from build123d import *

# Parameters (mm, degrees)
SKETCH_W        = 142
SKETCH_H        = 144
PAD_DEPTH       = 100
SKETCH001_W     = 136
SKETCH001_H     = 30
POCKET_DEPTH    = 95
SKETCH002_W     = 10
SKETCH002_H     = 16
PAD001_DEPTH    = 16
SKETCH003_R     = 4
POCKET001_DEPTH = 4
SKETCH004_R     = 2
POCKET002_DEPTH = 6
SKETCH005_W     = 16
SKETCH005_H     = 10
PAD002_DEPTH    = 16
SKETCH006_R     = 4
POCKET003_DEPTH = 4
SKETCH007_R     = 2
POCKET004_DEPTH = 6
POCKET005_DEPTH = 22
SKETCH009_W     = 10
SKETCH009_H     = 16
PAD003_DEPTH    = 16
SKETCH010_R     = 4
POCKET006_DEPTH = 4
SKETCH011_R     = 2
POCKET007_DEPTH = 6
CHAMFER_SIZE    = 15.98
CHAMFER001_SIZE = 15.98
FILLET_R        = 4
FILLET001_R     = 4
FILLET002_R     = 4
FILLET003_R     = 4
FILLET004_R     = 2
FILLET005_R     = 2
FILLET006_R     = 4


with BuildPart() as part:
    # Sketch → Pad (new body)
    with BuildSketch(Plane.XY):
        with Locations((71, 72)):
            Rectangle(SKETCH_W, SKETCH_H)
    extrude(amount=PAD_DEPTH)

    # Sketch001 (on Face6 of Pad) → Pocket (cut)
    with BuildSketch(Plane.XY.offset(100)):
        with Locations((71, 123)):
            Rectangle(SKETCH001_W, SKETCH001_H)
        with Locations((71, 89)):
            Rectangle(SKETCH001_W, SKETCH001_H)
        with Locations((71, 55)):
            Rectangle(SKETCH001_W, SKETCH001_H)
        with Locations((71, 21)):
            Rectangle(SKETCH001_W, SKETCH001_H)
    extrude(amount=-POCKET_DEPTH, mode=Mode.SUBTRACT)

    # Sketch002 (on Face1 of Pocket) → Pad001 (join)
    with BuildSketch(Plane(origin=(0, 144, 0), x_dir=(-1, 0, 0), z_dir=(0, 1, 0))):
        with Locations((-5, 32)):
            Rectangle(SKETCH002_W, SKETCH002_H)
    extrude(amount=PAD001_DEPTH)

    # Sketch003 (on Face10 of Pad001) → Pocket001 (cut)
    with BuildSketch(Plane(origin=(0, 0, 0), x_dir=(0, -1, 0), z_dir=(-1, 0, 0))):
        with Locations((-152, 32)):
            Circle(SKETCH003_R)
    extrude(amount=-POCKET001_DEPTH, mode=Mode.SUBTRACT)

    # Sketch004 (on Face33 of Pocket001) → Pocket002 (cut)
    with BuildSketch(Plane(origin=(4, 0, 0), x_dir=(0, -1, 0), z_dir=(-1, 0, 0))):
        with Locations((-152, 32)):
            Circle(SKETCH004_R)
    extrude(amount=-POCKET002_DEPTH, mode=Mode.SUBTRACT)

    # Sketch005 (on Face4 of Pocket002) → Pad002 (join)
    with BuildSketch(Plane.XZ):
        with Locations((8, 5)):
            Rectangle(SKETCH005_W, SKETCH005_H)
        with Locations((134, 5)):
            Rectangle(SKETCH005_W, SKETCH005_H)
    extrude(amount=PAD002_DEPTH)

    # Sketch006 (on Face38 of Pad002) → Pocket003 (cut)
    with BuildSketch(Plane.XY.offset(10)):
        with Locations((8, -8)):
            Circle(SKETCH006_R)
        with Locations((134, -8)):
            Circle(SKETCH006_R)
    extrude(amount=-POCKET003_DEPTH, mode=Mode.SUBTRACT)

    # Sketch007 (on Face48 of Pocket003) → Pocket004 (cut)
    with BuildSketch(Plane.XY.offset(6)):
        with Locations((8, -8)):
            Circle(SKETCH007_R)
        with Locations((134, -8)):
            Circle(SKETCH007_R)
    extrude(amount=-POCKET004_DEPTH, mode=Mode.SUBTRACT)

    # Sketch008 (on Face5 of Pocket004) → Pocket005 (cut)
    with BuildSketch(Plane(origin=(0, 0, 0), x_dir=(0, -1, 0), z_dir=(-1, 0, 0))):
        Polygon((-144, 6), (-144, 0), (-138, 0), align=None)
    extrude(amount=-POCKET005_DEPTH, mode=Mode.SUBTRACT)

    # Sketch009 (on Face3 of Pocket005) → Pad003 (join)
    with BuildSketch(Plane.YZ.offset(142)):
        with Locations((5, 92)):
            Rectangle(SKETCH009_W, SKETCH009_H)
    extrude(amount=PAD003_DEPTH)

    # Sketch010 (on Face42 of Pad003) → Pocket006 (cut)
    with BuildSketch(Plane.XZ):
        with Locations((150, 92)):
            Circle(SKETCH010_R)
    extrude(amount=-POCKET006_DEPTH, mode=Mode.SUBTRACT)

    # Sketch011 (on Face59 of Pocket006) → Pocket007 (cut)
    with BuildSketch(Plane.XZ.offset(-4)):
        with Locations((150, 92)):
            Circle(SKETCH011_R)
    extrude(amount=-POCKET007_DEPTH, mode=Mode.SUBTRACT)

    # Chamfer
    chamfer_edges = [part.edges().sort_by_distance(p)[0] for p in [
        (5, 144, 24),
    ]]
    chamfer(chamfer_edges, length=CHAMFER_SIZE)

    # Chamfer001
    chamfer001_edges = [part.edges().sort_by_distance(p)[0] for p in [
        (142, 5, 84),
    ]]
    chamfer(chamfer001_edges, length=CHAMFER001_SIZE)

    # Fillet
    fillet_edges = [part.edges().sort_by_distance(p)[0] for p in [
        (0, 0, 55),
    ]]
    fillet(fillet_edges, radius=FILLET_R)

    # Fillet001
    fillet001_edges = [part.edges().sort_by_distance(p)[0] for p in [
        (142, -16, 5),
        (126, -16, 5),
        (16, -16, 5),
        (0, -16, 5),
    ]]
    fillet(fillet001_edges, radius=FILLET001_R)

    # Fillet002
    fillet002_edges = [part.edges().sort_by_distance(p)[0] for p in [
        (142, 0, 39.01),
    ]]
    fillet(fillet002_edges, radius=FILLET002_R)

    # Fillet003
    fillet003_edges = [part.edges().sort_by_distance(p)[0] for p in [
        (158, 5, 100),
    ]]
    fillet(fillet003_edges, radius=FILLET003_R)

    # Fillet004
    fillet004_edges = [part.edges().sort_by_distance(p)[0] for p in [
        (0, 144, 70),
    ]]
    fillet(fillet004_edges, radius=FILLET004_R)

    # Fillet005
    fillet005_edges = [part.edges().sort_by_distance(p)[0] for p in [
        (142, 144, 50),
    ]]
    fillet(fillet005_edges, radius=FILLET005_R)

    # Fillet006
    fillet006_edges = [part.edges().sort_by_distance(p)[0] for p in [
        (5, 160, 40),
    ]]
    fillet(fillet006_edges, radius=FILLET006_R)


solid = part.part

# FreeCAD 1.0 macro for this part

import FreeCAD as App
import Part
import Sketcher


def edges_at(feature, points):
    """Names of the edges that pass closest to the given points."""
    edges = feature.Shape.Edges
    near = lambda p: min(range(len(edges)), key=lambda i: edges[i].distToShape(Part.Vertex(*p))[0])
    return sorted({f"Edge{near(p) + 1}" for p in points})


def add_polygon(sketch, points):
    """Adds a closed chain of lines whose ends are joined by coincident constraints."""
    first, n = sketch.GeometryCount, len(points)
    for a, b in zip(points, points[1:] + points[:1]):
        sketch.addGeometry(Part.LineSegment(App.Vector(*a, 0), App.Vector(*b, 0)), False)
    for i in range(n):
        sketch.addConstraint(Sketcher.Constraint("Coincident", first + i, 2, first + (i + 1) % n, 1))

doc = App.newDocument("Part")
body = doc.addObject("PartDesign::Body", "Body")

# Sketch on XY plane
sketch1 = body.newObject("Sketcher::SketchObject", "Sketch")
sketch1.AttachmentSupport = (doc.getObject("XY_Plane"), [""])
sketch1.MapMode = "FlatFace"
add_polygon(sketch1, [(0, 144), (0, 0), (142, 0), (142, 144)])  # lines 0-3
sketch1.addConstraint([
    Sketcher.Constraint("Vertical", 0),
    Sketcher.Constraint("Horizontal", 1),
    Sketcher.Constraint("Vertical", 2),
    Sketcher.Constraint("Horizontal", 3),
    Sketcher.Constraint("Coincident", 0, 2, -1, 1),
    Sketcher.Constraint("DistanceX", 1, 1, 1, 2, 142.0),
    Sketcher.Constraint("DistanceY", 0, 2, 0, 1, 144.0),
])
pad1 = body.newObject("PartDesign::Pad", "Pad")
pad1.Profile = sketch1
pad1.Length = 100

# Sketch on XY plane
sketch2 = body.newObject("Sketcher::SketchObject", "Sketch001")
sketch2.AttachmentSupport = (doc.getObject("XY_Plane"), [""])
sketch2.MapMode = "FlatFace"
sketch2.AttachmentOffset = App.Placement(App.Vector(0, 0, 100), App.Rotation())
add_polygon(sketch2, [(3, 138), (3, 108), (139, 108), (139, 138)])  # lines 0-3
add_polygon(sketch2, [(3, 104), (3, 74), (139, 74), (139, 104)])  # lines 4-7
add_polygon(sketch2, [(3, 70), (3, 40), (139, 40), (139, 70)])  # lines 8-11
add_polygon(sketch2, [(3, 36), (3, 6), (139, 6), (139, 36)])  # lines 12-15
sketch2.addConstraint([
    Sketcher.Constraint("Vertical", 0),
    Sketcher.Constraint("Horizontal", 1),
    Sketcher.Constraint("Vertical", 2),
    Sketcher.Constraint("Horizontal", 3),
    Sketcher.Constraint("Vertical", 4),
    Sketcher.Constraint("Horizontal", 5),
    Sketcher.Constraint("Vertical", 6),
    Sketcher.Constraint("Horizontal", 7),
    Sketcher.Constraint("Vertical", 8),
    Sketcher.Constraint("Horizontal", 9),
    Sketcher.Constraint("Vertical", 10),
    Sketcher.Constraint("Horizontal", 11),
    Sketcher.Constraint("Vertical", 12),
    Sketcher.Constraint("Horizontal", 13),
    Sketcher.Constraint("Vertical", 14),
    Sketcher.Constraint("Horizontal", 15),
    Sketcher.Constraint("Vertical", 3, 2, 4, 2),
    Sketcher.Constraint("Vertical", 2, 2, 5, 2),
    Sketcher.Constraint("Vertical", 7, 2, 8, 2),
    Sketcher.Constraint("Vertical", 6, 2, 9, 2),
    Sketcher.Constraint("Vertical", 11, 2, 12, 2),
    Sketcher.Constraint("Vertical", 10, 2, 13, 2),
    Sketcher.Constraint("Equal", 2, 4),
    Sketcher.Constraint("Equal", 6, 8),
    Sketcher.Constraint("Equal", 10, 12),
    Sketcher.Constraint("DistanceX", 1, 1, 1, 2, 136.0),
    Sketcher.Constraint("DistanceY", 0, 2, 0, 1, 30.0),
    Sketcher.Constraint("DistanceX", -1, 1, 0, 2, 3.0),
    Sketcher.Constraint("DistanceY", -1, 1, 0, 2, 108.0),
    Sketcher.Constraint("DistanceY", -1, 1, 4, 2, 74.0),
    Sketcher.Constraint("DistanceY", -1, 1, 8, 2, 40.0),
    Sketcher.Constraint("DistanceY", -1, 1, 12, 2, 6.0),
])
pocket1 = body.newObject("PartDesign::Pocket", "Pocket")
pocket1.Profile = sketch2
pocket1.Length = 95

# Sketch on XZ plane
sketch3 = body.newObject("Sketcher::SketchObject", "Sketch002")
sketch3.AttachmentSupport = (doc.getObject("XZ_Plane"), [""])
sketch3.MapMode = "FlatFace"
sketch3.AttachmentOffset = App.Placement(App.Vector(0, 0, -144), App.Rotation())
add_polygon(sketch3, [(10, 40), (10, 24), (0, 24), (0, 40)])  # lines 0-3
sketch3.addConstraint([
    Sketcher.Constraint("Vertical", 0),
    Sketcher.Constraint("Horizontal", 1),
    Sketcher.Constraint("Vertical", 2),
    Sketcher.Constraint("Horizontal", 3),
    Sketcher.Constraint("PointOnObject", 1, 2, -2),
    Sketcher.Constraint("DistanceX", 1, 2, 1, 1, 10.0),
    Sketcher.Constraint("DistanceY", 0, 2, 0, 1, 16.0),
    Sketcher.Constraint("DistanceY", -1, 1, 0, 2, 24.0),
])
pad2 = body.newObject("PartDesign::Pad", "Pad001")
pad2.Profile = sketch3
pad2.Length = 16
pad2.Reversed = True

# Sketch on YZ plane
sketch4 = body.newObject("Sketcher::SketchObject", "Sketch003")
sketch4.AttachmentSupport = (doc.getObject("YZ_Plane"), [""])
sketch4.MapMode = "FlatFace"
sketch4.addGeometry(Part.Circle(App.Vector(152, 32, 0), App.Vector(0, 0, 1), 4), False)
sketch4.addConstraint([
    Sketcher.Constraint("Diameter", 0, 8.0),
    Sketcher.Constraint("DistanceX", -1, 1, 0, 3, 152.0),
    Sketcher.Constraint("DistanceY", -1, 1, 0, 3, 32.0),
])
pocket2 = body.newObject("PartDesign::Pocket", "Pocket001")
pocket2.Profile = sketch4
pocket2.Length = 4
pocket2.Reversed = True

# Sketch on YZ plane
sketch5 = body.newObject("Sketcher::SketchObject", "Sketch004")
sketch5.AttachmentSupport = (doc.getObject("YZ_Plane"), [""])
sketch5.MapMode = "FlatFace"
sketch5.AttachmentOffset = App.Placement(App.Vector(0, 0, 4), App.Rotation())
sketch5.addGeometry(Part.Circle(App.Vector(152, 32, 0), App.Vector(0, 0, 1), 2), False)
sketch5.addConstraint([
    Sketcher.Constraint("Diameter", 0, 4.0),
    Sketcher.Constraint("DistanceX", -1, 1, 0, 3, 152.0),
    Sketcher.Constraint("DistanceY", -1, 1, 0, 3, 32.0),
])
pocket3 = body.newObject("PartDesign::Pocket", "Pocket002")
pocket3.Profile = sketch5
pocket3.Length = 6
pocket3.Reversed = True

# Sketch on XZ plane
sketch6 = body.newObject("Sketcher::SketchObject", "Sketch005")
sketch6.AttachmentSupport = (doc.getObject("XZ_Plane"), [""])
sketch6.MapMode = "FlatFace"
add_polygon(sketch6, [(0, 10), (0, 0), (16, 0), (16, 10)])  # lines 0-3
add_polygon(sketch6, [(126, 10), (126, 0), (142, 0), (142, 10)])  # lines 4-7
sketch6.addConstraint([
    Sketcher.Constraint("Vertical", 0),
    Sketcher.Constraint("Horizontal", 1),
    Sketcher.Constraint("Vertical", 2),
    Sketcher.Constraint("Horizontal", 3),
    Sketcher.Constraint("Vertical", 4),
    Sketcher.Constraint("Horizontal", 5),
    Sketcher.Constraint("Vertical", 6),
    Sketcher.Constraint("Horizontal", 7),
    Sketcher.Constraint("Coincident", 0, 2, -1, 1),
    Sketcher.Constraint("PointOnObject", 4, 2, -1),
    Sketcher.Constraint("Horizontal", 3, 2, 6, 2),
    Sketcher.Constraint("Equal", 3, 5),
    Sketcher.Constraint("DistanceX", 1, 1, 1, 2, 16.0),
    Sketcher.Constraint("DistanceY", 0, 2, 0, 1, 10.0),
    Sketcher.Constraint("DistanceX", -1, 1, 4, 2, 126.0),
])
pad3 = body.newObject("PartDesign::Pad", "Pad002")
pad3.Profile = sketch6
pad3.Length = 16

# Sketch on XY plane
sketch7 = body.newObject("Sketcher::SketchObject", "Sketch006")
sketch7.AttachmentSupport = (doc.getObject("XY_Plane"), [""])
sketch7.MapMode = "FlatFace"
sketch7.AttachmentOffset = App.Placement(App.Vector(0, 0, 10), App.Rotation())
sketch7.addGeometry([
    Part.Circle(App.Vector(8, -8, 0), App.Vector(0, 0, 1), 4),
    Part.Circle(App.Vector(134, -8, 0), App.Vector(0, 0, 1), 4),
], False)
sketch7.addConstraint([
    Sketcher.Constraint("Equal", 0, 1),
    Sketcher.Constraint("Horizontal", 0, 3, 1, 3),
    Sketcher.Constraint("Diameter", 0, 8.0),
    Sketcher.Constraint("DistanceX", -1, 1, 0, 3, 8.0),
    Sketcher.Constraint("DistanceY", 0, 3, -1, 1, 8.0),
    Sketcher.Constraint("DistanceX", -1, 1, 1, 3, 134.0),
])
pocket4 = body.newObject("PartDesign::Pocket", "Pocket003")
pocket4.Profile = sketch7
pocket4.Length = 4

# Sketch on XY plane
sketch8 = body.newObject("Sketcher::SketchObject", "Sketch007")
sketch8.AttachmentSupport = (doc.getObject("XY_Plane"), [""])
sketch8.MapMode = "FlatFace"
sketch8.AttachmentOffset = App.Placement(App.Vector(0, 0, 6), App.Rotation())
sketch8.addGeometry([
    Part.Circle(App.Vector(8, -8, 0), App.Vector(0, 0, 1), 2),
    Part.Circle(App.Vector(134, -8, 0), App.Vector(0, 0, 1), 2),
], False)
sketch8.addConstraint([
    Sketcher.Constraint("Equal", 0, 1),
    Sketcher.Constraint("Horizontal", 0, 3, 1, 3),
    Sketcher.Constraint("Diameter", 0, 4.0),
    Sketcher.Constraint("DistanceX", -1, 1, 0, 3, 8.0),
    Sketcher.Constraint("DistanceY", 0, 3, -1, 1, 8.0),
    Sketcher.Constraint("DistanceX", -1, 1, 1, 3, 134.0),
])
pocket5 = body.newObject("PartDesign::Pocket", "Pocket004")
pocket5.Profile = sketch8
pocket5.Length = 6

# Sketch on YZ plane
sketch9 = body.newObject("Sketcher::SketchObject", "Sketch008")
sketch9.AttachmentSupport = (doc.getObject("YZ_Plane"), [""])
sketch9.MapMode = "FlatFace"
add_polygon(sketch9, [(144, 6), (144, 0), (138, 0)])  # lines 0-2
sketch9.addConstraint([
    Sketcher.Constraint("Vertical", 0),
    Sketcher.Constraint("Horizontal", 1),
    Sketcher.Constraint("PointOnObject", 0, 2, -1),
    Sketcher.Constraint("Equal", 1, 0),
    Sketcher.Constraint("DistanceX", 1, 2, 1, 1, 6.0),
    Sketcher.Constraint("DistanceX", -1, 1, 0, 2, 144.0),
])
pocket6 = body.newObject("PartDesign::Pocket", "Pocket005")
pocket6.Profile = sketch9
pocket6.Length = 22
pocket6.Reversed = True

# Sketch on YZ plane
sketch10 = body.newObject("Sketcher::SketchObject", "Sketch009")
sketch10.AttachmentSupport = (doc.getObject("YZ_Plane"), [""])
sketch10.MapMode = "FlatFace"
sketch10.AttachmentOffset = App.Placement(App.Vector(0, 0, 142), App.Rotation())
add_polygon(sketch10, [(0, 100), (0, 84), (10, 84), (10, 100)])  # lines 0-3
sketch10.addConstraint([
    Sketcher.Constraint("Vertical", 0),
    Sketcher.Constraint("Horizontal", 1),
    Sketcher.Constraint("Vertical", 2),
    Sketcher.Constraint("Horizontal", 3),
    Sketcher.Constraint("PointOnObject", 0, 2, -2),
    Sketcher.Constraint("DistanceX", 1, 1, 1, 2, 10.0),
    Sketcher.Constraint("DistanceY", 0, 2, 0, 1, 16.0),
    Sketcher.Constraint("DistanceY", -1, 1, 0, 2, 84.0),
])
pad4 = body.newObject("PartDesign::Pad", "Pad003")
pad4.Profile = sketch10
pad4.Length = 16

# Sketch on XZ plane
sketch11 = body.newObject("Sketcher::SketchObject", "Sketch010")
sketch11.AttachmentSupport = (doc.getObject("XZ_Plane"), [""])
sketch11.MapMode = "FlatFace"
sketch11.addGeometry(Part.Circle(App.Vector(150, 92, 0), App.Vector(0, 0, 1), 4), False)
sketch11.addConstraint([
    Sketcher.Constraint("Diameter", 0, 8.0),
    Sketcher.Constraint("DistanceX", -1, 1, 0, 3, 150.0),
    Sketcher.Constraint("DistanceY", -1, 1, 0, 3, 92.0),
])
pocket7 = body.newObject("PartDesign::Pocket", "Pocket006")
pocket7.Profile = sketch11
pocket7.Length = 4

# Sketch on XZ plane
sketch12 = body.newObject("Sketcher::SketchObject", "Sketch011")
sketch12.AttachmentSupport = (doc.getObject("XZ_Plane"), [""])
sketch12.MapMode = "FlatFace"
sketch12.AttachmentOffset = App.Placement(App.Vector(0, 0, -4), App.Rotation())
sketch12.addGeometry(Part.Circle(App.Vector(150, 92, 0), App.Vector(0, 0, 1), 2), False)
sketch12.addConstraint([
    Sketcher.Constraint("Diameter", 0, 4.0),
    Sketcher.Constraint("DistanceX", -1, 1, 0, 3, 150.0),
    Sketcher.Constraint("DistanceY", -1, 1, 0, 3, 92.0),
])
pocket8 = body.newObject("PartDesign::Pocket", "Pocket007")
pocket8.Profile = sketch12
pocket8.Length = 6
doc.recompute()

chamfer = body.newObject("PartDesign::Chamfer", "Chamfer")
chamfer.Base = (pocket8, edges_at(pocket8, [(5, 144, 24)]))
chamfer.Size = 15.98
doc.recompute()

chamfer2 = body.newObject("PartDesign::Chamfer", "Chamfer001")
chamfer2.Base = (chamfer, edges_at(chamfer, [(142, 5, 84)]))
chamfer2.Size = 15.98
doc.recompute()

fillet = body.newObject("PartDesign::Fillet", "Fillet")
fillet.Base = (chamfer2, edges_at(chamfer2, [(0, 0, 55)]))
fillet.Radius = 4
doc.recompute()

fillet2 = body.newObject("PartDesign::Fillet", "Fillet001")
fillet2.Base = (fillet, edges_at(fillet, [
    (142, -16, 5),
    (126, -16, 5),
    (16, -16, 5),
    (0, -16, 5),
]))
fillet2.Radius = 4
doc.recompute()

fillet3 = body.newObject("PartDesign::Fillet", "Fillet002")
fillet3.Base = (fillet2, edges_at(fillet2, [(142, 0, 39.01)]))
fillet3.Radius = 4
doc.recompute()

fillet4 = body.newObject("PartDesign::Fillet", "Fillet003")
fillet4.Base = (fillet3, edges_at(fillet3, [(158, 5, 100)]))
fillet4.Radius = 4
doc.recompute()

fillet5 = body.newObject("PartDesign::Fillet", "Fillet004")
fillet5.Base = (fillet4, edges_at(fillet4, [(0, 144, 70)]))
fillet5.Radius = 2
doc.recompute()

fillet6 = body.newObject("PartDesign::Fillet", "Fillet005")
fillet6.Base = (fillet5, edges_at(fillet5, [(142, 144, 50)]))
fillet6.Radius = 2
doc.recompute()

fillet7 = body.newObject("PartDesign::Fillet", "Fillet006")
fillet7.Base = (fillet6, edges_at(fillet6, [(5, 160, 40)]))
fillet7.Radius = 4

doc.recompute()
